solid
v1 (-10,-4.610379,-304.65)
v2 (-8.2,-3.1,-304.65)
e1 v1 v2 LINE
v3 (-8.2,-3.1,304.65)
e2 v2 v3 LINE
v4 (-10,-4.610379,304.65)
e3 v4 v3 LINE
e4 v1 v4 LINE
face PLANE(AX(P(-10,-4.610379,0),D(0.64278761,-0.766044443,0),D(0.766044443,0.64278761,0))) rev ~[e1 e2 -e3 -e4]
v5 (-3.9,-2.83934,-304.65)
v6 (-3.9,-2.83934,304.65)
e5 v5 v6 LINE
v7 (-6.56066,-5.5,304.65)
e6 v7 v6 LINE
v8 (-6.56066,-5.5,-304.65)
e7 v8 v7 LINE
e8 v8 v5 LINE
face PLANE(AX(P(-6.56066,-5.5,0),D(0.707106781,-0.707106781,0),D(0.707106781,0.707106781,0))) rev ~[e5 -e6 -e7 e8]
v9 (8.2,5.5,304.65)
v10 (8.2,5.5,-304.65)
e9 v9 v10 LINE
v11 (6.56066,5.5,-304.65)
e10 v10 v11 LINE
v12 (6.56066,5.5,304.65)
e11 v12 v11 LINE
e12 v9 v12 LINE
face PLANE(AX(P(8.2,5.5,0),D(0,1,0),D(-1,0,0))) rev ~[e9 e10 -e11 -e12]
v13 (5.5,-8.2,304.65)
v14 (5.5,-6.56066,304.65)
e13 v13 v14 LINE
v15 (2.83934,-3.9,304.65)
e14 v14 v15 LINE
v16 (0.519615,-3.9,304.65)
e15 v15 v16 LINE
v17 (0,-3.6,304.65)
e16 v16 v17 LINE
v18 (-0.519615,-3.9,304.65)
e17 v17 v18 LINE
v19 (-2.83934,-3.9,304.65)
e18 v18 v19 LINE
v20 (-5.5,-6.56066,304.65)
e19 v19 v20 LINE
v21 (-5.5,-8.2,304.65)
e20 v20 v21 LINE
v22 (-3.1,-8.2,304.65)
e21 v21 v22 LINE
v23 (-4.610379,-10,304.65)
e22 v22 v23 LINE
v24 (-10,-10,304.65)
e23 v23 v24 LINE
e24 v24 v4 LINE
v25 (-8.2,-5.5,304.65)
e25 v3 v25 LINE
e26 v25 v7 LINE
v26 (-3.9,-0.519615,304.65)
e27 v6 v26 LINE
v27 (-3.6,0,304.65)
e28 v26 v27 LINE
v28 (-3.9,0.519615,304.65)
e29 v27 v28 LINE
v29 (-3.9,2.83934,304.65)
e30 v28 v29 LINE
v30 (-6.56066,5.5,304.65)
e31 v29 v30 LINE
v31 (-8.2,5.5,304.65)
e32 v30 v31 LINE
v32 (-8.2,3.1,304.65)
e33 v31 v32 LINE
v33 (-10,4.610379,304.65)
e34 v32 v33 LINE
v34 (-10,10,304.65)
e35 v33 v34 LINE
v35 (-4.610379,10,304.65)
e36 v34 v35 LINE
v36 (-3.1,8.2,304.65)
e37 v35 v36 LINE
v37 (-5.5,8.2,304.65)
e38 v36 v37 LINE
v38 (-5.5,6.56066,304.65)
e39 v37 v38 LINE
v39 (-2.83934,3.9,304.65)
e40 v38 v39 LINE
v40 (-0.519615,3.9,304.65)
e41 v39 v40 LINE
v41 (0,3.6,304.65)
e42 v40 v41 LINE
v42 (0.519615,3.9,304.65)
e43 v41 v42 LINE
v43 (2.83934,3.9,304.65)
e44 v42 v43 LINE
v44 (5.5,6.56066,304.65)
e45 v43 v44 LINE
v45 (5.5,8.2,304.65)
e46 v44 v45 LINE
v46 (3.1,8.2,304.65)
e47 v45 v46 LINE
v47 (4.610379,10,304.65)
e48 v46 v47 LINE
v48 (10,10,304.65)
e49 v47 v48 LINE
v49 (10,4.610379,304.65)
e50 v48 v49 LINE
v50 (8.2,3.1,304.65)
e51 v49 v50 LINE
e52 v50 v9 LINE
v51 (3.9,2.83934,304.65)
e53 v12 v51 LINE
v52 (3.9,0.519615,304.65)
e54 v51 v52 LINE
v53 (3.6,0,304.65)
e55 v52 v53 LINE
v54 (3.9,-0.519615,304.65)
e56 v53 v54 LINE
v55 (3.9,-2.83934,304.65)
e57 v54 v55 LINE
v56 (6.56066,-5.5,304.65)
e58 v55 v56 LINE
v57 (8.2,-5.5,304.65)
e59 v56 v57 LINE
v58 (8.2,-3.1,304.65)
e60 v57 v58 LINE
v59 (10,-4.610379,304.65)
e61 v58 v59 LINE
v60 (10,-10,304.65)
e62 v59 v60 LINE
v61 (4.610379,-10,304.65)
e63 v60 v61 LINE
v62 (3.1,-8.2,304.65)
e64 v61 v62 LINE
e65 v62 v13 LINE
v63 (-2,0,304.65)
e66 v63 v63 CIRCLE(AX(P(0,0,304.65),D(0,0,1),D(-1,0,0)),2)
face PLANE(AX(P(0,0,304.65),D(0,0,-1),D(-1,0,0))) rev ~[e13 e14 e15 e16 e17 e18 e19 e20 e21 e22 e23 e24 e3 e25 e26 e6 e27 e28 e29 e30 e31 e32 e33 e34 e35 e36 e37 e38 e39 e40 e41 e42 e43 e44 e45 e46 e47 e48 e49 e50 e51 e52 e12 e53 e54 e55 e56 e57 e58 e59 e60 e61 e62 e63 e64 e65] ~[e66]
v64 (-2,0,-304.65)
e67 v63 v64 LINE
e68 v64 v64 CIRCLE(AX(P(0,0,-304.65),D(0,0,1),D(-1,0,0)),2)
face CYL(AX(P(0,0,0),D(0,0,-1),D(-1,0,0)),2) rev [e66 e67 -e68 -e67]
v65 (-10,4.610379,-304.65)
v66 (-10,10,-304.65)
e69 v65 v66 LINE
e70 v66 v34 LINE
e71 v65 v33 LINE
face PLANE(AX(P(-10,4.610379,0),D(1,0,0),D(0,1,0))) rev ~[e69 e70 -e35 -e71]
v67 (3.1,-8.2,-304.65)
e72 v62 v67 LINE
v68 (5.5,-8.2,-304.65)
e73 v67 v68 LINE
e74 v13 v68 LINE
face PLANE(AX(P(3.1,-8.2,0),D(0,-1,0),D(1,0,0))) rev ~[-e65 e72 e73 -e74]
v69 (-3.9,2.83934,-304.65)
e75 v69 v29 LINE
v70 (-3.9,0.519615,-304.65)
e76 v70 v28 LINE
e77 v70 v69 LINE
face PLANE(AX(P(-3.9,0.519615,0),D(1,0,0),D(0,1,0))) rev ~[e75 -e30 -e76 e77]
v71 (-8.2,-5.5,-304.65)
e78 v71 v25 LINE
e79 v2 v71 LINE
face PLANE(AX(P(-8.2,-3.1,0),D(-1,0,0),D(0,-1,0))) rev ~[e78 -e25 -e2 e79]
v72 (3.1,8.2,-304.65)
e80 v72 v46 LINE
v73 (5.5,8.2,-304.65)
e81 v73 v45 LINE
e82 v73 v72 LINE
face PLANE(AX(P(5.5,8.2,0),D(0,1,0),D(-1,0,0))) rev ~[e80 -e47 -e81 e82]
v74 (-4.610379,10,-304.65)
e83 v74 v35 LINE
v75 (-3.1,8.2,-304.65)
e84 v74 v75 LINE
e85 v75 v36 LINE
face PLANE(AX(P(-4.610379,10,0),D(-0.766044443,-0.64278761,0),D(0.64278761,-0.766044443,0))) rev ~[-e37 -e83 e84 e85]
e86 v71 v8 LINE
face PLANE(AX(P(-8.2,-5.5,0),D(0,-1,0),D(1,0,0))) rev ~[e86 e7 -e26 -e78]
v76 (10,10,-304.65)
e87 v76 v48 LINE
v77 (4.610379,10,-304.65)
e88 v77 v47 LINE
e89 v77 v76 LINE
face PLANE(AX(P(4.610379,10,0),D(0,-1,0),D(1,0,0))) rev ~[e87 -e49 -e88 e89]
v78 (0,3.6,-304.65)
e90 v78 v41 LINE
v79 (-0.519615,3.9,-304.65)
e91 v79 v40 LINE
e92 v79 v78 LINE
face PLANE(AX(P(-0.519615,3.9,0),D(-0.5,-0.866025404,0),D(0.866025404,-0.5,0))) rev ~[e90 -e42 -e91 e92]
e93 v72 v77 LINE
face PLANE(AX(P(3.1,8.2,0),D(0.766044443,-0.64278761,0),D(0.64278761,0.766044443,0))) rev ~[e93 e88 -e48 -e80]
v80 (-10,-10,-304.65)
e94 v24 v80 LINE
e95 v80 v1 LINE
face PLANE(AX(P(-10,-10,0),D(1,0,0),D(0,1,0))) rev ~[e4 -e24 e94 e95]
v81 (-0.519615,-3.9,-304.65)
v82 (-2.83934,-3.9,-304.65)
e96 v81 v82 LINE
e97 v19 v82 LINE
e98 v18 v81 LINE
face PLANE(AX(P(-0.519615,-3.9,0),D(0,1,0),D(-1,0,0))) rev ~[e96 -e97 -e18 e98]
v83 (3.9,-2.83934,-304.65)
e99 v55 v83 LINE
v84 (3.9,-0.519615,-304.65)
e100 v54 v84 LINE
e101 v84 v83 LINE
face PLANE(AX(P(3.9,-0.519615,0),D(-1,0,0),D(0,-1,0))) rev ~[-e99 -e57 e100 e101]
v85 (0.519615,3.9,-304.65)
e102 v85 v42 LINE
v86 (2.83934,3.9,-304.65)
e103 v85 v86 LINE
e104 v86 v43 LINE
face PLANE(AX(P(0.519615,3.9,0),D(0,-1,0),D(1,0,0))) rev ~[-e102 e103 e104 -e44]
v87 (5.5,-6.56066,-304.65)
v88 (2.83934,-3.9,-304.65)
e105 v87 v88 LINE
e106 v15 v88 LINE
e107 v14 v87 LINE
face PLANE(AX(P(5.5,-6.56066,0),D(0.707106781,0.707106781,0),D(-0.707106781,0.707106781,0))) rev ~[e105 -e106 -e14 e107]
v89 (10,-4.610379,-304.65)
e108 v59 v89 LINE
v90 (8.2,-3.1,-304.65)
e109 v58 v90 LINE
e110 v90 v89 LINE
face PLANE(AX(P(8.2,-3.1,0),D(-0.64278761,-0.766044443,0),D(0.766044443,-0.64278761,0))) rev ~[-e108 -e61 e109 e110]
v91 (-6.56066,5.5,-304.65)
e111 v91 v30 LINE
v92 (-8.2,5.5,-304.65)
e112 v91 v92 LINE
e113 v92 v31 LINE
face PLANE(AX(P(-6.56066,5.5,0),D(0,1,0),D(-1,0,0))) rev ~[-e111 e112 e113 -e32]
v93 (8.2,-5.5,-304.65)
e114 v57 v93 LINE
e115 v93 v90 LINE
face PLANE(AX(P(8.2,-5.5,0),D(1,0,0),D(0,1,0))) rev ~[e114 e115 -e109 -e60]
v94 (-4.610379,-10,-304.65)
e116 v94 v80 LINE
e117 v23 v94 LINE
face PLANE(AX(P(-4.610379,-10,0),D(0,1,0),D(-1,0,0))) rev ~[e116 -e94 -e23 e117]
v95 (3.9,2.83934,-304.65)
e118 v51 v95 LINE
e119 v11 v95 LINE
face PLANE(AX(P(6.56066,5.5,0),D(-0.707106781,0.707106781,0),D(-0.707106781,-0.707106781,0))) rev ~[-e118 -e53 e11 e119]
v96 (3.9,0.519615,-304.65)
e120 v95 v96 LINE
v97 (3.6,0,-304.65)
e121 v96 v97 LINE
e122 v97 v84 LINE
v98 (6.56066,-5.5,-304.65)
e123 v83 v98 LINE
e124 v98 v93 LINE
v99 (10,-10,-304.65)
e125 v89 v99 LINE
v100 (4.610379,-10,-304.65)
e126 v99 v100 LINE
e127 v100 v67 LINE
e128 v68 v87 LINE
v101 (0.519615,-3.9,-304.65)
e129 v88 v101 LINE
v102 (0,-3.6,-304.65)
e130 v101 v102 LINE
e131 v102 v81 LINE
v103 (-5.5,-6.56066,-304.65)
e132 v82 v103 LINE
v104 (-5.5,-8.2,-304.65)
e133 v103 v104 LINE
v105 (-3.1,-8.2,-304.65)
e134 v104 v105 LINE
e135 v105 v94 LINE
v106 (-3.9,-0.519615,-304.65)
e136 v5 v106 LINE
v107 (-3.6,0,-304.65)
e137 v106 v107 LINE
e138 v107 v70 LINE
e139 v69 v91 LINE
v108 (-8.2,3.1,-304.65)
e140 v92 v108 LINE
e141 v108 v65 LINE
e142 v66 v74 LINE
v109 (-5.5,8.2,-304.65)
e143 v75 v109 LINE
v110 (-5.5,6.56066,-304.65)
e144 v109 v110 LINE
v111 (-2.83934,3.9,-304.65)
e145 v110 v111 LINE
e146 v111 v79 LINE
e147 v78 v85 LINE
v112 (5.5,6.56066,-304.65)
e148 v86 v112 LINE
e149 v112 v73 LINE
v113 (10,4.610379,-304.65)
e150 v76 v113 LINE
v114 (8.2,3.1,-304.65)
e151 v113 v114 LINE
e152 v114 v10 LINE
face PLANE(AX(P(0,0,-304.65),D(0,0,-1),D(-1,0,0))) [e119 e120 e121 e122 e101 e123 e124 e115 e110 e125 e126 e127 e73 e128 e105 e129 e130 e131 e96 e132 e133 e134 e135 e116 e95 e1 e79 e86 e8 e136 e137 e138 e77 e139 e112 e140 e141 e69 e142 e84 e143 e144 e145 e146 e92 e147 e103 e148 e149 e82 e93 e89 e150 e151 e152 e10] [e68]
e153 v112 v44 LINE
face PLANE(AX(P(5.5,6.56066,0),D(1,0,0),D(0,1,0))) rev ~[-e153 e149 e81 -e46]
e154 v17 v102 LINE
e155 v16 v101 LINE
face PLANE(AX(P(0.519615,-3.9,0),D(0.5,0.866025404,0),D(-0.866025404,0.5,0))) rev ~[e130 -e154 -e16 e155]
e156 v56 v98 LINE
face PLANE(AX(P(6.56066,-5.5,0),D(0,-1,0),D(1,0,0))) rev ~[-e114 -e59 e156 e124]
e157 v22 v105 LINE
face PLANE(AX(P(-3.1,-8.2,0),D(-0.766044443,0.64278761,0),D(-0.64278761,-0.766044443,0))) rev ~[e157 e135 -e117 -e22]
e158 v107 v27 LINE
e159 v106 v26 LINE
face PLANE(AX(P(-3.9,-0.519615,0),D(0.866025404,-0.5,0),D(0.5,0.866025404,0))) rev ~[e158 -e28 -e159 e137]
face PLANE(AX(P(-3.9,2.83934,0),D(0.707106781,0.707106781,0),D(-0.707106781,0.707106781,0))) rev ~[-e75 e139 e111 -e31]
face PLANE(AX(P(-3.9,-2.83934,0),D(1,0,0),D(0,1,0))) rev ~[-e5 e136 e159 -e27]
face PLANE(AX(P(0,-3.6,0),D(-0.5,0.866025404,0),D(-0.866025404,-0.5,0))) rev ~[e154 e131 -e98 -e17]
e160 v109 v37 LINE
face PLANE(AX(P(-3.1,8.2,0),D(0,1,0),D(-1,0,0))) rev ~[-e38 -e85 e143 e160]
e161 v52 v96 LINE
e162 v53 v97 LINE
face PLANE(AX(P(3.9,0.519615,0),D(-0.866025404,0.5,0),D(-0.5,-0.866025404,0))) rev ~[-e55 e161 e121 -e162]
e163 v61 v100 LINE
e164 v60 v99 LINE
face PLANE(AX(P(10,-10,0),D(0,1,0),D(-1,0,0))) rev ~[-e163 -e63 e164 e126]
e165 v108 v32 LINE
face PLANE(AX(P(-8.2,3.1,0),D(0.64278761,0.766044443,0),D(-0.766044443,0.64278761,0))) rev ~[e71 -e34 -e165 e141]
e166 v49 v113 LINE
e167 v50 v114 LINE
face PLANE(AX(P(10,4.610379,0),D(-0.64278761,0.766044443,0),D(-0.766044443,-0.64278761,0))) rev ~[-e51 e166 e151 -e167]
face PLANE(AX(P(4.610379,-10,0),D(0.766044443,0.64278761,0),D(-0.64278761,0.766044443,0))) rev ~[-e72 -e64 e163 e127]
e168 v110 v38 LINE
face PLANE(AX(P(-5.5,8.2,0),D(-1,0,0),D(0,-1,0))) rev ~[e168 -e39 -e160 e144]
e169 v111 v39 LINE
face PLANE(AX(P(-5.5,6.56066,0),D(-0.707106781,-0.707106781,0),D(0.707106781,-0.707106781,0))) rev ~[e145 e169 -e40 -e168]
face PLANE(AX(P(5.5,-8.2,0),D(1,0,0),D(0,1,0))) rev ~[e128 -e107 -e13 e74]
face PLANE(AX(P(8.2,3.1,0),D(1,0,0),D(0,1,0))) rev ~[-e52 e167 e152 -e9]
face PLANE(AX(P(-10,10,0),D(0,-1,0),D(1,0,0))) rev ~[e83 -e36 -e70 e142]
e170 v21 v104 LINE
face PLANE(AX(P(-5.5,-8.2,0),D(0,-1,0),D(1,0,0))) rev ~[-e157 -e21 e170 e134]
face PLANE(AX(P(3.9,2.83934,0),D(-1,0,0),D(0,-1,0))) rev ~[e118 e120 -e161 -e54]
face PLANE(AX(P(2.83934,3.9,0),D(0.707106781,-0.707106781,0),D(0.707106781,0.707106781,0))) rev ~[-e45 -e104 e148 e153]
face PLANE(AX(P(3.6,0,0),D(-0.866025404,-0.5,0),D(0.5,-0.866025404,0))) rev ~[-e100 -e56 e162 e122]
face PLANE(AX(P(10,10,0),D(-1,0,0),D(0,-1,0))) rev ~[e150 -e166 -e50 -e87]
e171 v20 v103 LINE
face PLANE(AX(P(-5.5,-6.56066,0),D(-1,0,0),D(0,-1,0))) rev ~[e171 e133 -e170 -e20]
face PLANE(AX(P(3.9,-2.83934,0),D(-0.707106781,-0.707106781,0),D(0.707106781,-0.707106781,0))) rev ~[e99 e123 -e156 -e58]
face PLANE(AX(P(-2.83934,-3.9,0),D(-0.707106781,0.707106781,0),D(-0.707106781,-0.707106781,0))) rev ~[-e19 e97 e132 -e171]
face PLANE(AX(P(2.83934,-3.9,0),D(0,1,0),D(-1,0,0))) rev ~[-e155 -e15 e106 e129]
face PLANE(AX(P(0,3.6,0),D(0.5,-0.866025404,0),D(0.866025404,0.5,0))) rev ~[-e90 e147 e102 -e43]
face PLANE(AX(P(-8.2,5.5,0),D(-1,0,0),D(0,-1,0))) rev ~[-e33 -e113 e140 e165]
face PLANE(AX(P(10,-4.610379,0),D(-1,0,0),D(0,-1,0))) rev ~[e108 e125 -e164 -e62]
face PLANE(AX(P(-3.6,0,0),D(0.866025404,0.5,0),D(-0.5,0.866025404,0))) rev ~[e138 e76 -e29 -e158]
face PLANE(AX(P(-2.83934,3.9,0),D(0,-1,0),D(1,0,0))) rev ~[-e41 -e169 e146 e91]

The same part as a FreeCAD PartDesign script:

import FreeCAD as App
import Part
import Sketcher
Q = App.Units.Quantity


def add_polygon(sketch, points):
    """Adds a closed chain of lines whose ends are joined by coincident constraints."""
    first, n = sketch.GeometryCount, len(points)
    for a, b in zip(points, points[1:] + points[:1]):
        sketch.addGeometry(Part.LineSegment(App.Vector(*a, 0), App.Vector(*b, 0)), False)
    for i in range(n):
        sketch.addConstraint(Sketcher.Constraint("Coincident", first + i, 2, first + (i + 1) % n, 1))

doc = App.newDocument("Part")
body = doc.addObject("PartDesign::Body", "Body")

# Sketch on XY plane
sketch1 = body.newObject("Sketcher::SketchObject", "Sketch")
sketch1.AttachmentSupport = (doc.getObject("XY_Plane"), [""])
sketch1.MapMode = "FlatFace"
add_polygon(sketch1, [(10, 4.6), (10, 10), (4.6, 10), (3.1, 8.2), (5.5, 8.2), (5.5, 6.6), (2.8, 3.9), (0.5, 3.9), (0, 3.6), (-0.5, 3.9), (-2.8, 3.9), (-5.5, 6.6), (-5.5, 8.2), (-3.1, 8.2), (-4.6, 10), (-10, 10), (-10, 4.6), (-8.2, 3.1), (-8.2, 5.5), (-6.6, 5.5), (-3.9, 2.8), (-3.9, 0.5), (-3.6, 0), (-3.9, -0.5), (-3.9, -2.8), (-6.6, -5.5), (-8.2, -5.5), (-8.2, -3.1), (-10, -4.6), (-10, -10), (-4.6, -10), (-3.1, -8.2), (-5.5, -8.2), (-5.5, -6.6), (-2.8, -3.9), (-0.5, -3.9), (0, -3.6), (0.5, -3.9), (2.8, -3.9), (5.5, -6.6), (5.5, -8.2), (3.1, -8.2), (4.6, -10), (10, -10), (10, -4.6), (8.2, -3.1), (8.2, -5.5), (6.6, -5.5), (3.9, -2.8), (3.9, -0.5), (3.6, 0), (3.9, 0.5), (3.9, 2.8), (6.6, 5.5), (8.2, 5.5), (8.2, 3.1)])  # lines 0-55
sketch1.addGeometry(Part.Circle(App.Vector(0, 0, 0), App.Vector(0, 0, 1), 2), False)  # 56
sketch1.addConstraint([
    Sketcher.Constraint("Vertical", 0),
    Sketcher.Constraint("Horizontal", 1),
    Sketcher.Constraint("Horizontal", 3),
    Sketcher.Constraint("Vertical", 4),
    Sketcher.Constraint("Horizontal", 6),
    Sketcher.Constraint("Horizontal", 9),
    Sketcher.Constraint("Vertical", 11),
    Sketcher.Constraint("Horizontal", 12),
    Sketcher.Constraint("Horizontal", 14),
    Sketcher.Constraint("Vertical", 15),
    Sketcher.Constraint("Vertical", 17),
    Sketcher.Constraint("Horizontal", 18),
    Sketcher.Constraint("Vertical", 20),
    Sketcher.Constraint("Vertical", 23),
    Sketcher.Constraint("Horizontal", 25),
    Sketcher.Constraint("Vertical", 26),
    Sketcher.Constraint("Vertical", 28),
    Sketcher.Constraint("Horizontal", 29),
    Sketcher.Constraint("Horizontal", 31),
    Sketcher.Constraint("Vertical", 32),
    Sketcher.Constraint("Horizontal", 34),
    Sketcher.Constraint("Horizontal", 37),
    Sketcher.Constraint("Vertical", 39),
    Sketcher.Constraint("Horizontal", 40),
    Sketcher.Constraint("Horizontal", 42),
    Sketcher.Constraint("Vertical", 43),
    Sketcher.Constraint("Vertical", 45),
    Sketcher.Constraint("Horizontal", 46),
    Sketcher.Constraint("Vertical", 48),
    Sketcher.Constraint("Vertical", 51),
    Sketcher.Constraint("Horizontal", 53),
    Sketcher.Constraint("Vertical", 54),
    Sketcher.Constraint("Coincident", 56, 3, -1, 1),
    Sketcher.Constraint("Symmetric", 0, 2, 28, 2, -1, 1),
    Sketcher.Constraint("Symmetric", 2, 2, 30, 2, -1, 1),
    Sketcher.Constraint("Symmetric", 4, 2, 32, 2, -1, 1),
    Sketcher.Constraint("Symmetric", 5, 2, 33, 2, -1, 1),
    Sketcher.Constraint("Symmetric", 7, 2, 35, 2, -1, 1),
    Sketcher.Constraint("Symmetric", 8, 2, 36, 2, -1, 1),
    Sketcher.Constraint("Symmetric", 10, 2, 38, 2, -1, 1),
    Sketcher.Constraint("Symmetric", 12, 2, 40, 2, -1, 1),
    Sketcher.Constraint("Symmetric", 13, 2, 41, 2, -1, 1),
    Sketcher.Constraint("Symmetric", 15, 2, 43, 2, -1, 1),
    Sketcher.Constraint("Symmetric", 16, 2, 44, 2, -1, 1),
    Sketcher.Constraint("Symmetric", 18, 2, 46, 2, -1, 1),
    Sketcher.Constraint("Symmetric", 19, 2, 47, 2, -1, 1),
    Sketcher.Constraint("Symmetric", 21, 2, 49, 2, -1, 1),
    Sketcher.Constraint("Symmetric", 22, 2, 50, 2, -1, 1),
    Sketcher.Constraint("Symmetric", 24, 2, 52, 2, -1, 1),
    Sketcher.Constraint("Symmetric", 26, 2, 54, 2, -1, 1),
    Sketcher.Constraint("Symmetric", 6, 2, 8, 2, -2),
    Sketcher.Constraint("Symmetric", 4, 2, 10, 2, -2),
    Sketcher.Constraint("Symmetric", 2, 2, 12, 2, -2),
    Sketcher.Constraint("Symmetric", 1, 2, 13, 2, -2),
    Sketcher.Constraint("Symmetric", 27, 2, 43, 2, -2),
    Sketcher.Constraint("Symmetric", 26, 2, 44, 2, -2),
    Sketcher.Constraint("Symmetric", 24, 2, 46, 2, -2),
    Sketcher.Constraint("Symmetric", 23, 2, 47, 2, -2),
    Sketcher.Constraint("PointOnObject", 7, 2, -2),
    Sketcher.Constraint("PointOnObject", 21, 2, -1),
    Sketcher.Constraint("Perpendicular", 5, 10),
    Sketcher.Constraint("Perpendicular", 2, 16),
    Sketcher.Constraint("Parallel", 10, 19),
    Sketcher.Constraint("Perpendicular", 7, 21),
    Sketcher.Constraint("Perpendicular", 8, 22),
    Sketcher.Constraint("Perpendicular", 19, 24),
    Sketcher.Constraint("Perpendicular", 16, 30),
    Sketcher.Constraint("Perpendicular", 21, 35),
    Sketcher.Constraint("Perpendicular", 33, 38),
    Sketcher.Constraint("Perpendicular", 35, 49),
    Sketcher.Constraint("Perpendicular", 47, 52),
    Sketcher.Constraint("Perpendicular", 41, 55),
    Sketcher.Constraint("Equal", 42, 0),
    Sketcher.Constraint("Equal", 53, 4),
    Sketcher.Constraint("Equal", 40, 17),
    Sketcher.Constraint("Equal", 37, 20),
    Sketcher.Constraint("Equal", 13, 16),
    Sketcher.Constraint("Equal", 10, 19),
    Sketcher.Constraint("Equal", 8, 21),
    Sketcher.Constraint("Diameter", 56, 4.0),
    Sketcher.Constraint("Angle", 2, Q("-130 deg")),
    Sketcher.Constraint("Angle", 7, Q("-150 deg")),
    Sketcher.Constraint("DistanceX", 3, 1, 3, 2, 2.4),
    Sketcher.Constraint("DistanceX", -1, 1, 0, 2, 10.0),
    Sketcher.Constraint("Distance", 7, 0.6),
    Sketcher.Constraint("DistanceX", -1, 1, 2, 2, 3.1),
    Sketcher.Constraint("DistanceY", -1, 1, 2, 2, 8.2),
    Sketcher.Constraint("DistanceY", -1, 1, 5, 2, 3.9),
    Sketcher.Constraint("DistanceX", 18, 1, 18, 2, 1.63934),
])
pad1 = body.newObject("PartDesign::Pad", "Pad")
pad1.Profile = sketch1
pad1.Length = 609.3
pad1.Midplane = True

doc.recompute()
